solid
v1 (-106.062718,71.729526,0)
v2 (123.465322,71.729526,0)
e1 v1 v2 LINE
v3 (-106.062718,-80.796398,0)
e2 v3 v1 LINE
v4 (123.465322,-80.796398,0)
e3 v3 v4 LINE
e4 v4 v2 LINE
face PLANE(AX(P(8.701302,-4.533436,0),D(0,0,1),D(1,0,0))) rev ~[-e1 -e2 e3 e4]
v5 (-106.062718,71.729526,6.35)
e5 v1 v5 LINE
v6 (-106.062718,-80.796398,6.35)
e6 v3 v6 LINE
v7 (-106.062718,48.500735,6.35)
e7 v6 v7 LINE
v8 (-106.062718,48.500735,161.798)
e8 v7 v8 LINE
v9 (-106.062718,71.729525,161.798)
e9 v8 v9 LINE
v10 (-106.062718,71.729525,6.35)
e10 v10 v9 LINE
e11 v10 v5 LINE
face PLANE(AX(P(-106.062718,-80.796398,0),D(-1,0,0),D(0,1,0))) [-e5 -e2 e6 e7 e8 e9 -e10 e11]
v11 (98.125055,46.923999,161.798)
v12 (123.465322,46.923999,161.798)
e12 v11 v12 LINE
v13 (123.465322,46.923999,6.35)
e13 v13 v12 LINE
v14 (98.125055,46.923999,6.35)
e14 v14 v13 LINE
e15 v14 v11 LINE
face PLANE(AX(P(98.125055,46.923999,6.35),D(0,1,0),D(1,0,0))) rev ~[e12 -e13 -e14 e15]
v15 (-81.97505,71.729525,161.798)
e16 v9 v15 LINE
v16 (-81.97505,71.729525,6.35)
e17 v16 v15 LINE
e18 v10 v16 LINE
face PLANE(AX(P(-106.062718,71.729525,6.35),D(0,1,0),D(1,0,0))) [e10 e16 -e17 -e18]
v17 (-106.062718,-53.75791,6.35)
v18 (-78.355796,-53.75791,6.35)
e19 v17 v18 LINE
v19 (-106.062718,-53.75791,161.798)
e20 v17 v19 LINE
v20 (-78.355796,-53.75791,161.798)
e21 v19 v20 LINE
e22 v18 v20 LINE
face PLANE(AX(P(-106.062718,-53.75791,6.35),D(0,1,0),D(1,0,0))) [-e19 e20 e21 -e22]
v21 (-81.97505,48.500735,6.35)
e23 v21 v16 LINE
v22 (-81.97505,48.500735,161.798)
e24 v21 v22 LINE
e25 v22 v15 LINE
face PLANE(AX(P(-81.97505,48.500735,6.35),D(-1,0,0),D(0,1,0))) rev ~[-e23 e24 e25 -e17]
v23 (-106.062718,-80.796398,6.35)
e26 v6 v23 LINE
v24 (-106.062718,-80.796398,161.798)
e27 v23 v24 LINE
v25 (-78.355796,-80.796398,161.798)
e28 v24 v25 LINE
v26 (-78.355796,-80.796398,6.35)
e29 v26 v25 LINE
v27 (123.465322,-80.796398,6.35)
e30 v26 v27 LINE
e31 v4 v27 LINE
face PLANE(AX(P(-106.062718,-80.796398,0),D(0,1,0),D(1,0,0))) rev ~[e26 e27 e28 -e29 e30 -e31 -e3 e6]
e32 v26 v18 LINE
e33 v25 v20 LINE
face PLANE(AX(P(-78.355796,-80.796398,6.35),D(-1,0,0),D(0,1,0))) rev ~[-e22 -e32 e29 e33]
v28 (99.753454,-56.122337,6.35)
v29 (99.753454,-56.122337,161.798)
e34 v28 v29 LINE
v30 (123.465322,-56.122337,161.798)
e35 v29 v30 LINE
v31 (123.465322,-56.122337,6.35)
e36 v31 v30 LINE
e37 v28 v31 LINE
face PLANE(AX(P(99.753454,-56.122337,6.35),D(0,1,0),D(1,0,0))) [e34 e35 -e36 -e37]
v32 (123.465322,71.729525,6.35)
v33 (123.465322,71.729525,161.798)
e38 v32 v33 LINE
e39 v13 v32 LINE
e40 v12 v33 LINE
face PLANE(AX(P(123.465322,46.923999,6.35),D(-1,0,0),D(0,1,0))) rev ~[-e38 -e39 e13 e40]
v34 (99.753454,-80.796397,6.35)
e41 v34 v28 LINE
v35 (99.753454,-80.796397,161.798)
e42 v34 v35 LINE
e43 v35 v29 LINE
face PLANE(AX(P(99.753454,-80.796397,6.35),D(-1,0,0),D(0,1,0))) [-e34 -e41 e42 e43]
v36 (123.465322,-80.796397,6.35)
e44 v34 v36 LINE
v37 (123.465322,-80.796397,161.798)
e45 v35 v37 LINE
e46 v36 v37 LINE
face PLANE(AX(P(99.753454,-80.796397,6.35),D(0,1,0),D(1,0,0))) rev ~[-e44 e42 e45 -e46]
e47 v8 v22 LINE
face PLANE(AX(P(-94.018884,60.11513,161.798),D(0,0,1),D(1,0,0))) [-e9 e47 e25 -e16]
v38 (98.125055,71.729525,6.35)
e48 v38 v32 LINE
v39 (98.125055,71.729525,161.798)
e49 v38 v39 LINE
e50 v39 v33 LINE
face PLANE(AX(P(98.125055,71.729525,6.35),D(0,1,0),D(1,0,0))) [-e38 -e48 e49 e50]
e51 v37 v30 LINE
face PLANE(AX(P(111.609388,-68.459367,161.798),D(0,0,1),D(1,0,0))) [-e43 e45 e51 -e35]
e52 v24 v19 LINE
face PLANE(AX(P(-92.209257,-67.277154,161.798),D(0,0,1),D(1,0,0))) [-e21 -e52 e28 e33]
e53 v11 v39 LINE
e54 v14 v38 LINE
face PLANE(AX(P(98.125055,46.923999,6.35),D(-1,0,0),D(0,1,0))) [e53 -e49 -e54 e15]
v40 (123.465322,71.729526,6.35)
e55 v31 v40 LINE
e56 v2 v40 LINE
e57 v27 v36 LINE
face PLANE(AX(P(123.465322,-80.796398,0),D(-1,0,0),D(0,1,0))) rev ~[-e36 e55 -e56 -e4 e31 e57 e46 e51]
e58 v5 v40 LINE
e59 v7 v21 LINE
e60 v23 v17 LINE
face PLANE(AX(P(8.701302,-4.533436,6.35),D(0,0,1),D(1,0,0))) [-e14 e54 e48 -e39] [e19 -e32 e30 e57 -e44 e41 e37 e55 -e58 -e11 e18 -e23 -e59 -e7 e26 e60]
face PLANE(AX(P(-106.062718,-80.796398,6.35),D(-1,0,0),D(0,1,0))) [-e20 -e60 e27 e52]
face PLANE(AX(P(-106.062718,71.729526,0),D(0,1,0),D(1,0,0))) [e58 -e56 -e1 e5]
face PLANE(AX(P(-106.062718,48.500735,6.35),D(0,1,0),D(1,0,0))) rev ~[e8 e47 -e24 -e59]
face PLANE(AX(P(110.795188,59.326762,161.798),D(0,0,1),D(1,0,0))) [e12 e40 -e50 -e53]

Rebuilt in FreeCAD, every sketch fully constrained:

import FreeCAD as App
import Part
import Sketcher
from FreeCAD import Vector


def add_polygon(sketch, points):
    """Adds a closed chain of lines whose ends are joined by coincident constraints."""
    first, n = sketch.GeometryCount, len(points)
    for a, b in zip(points, points[1:] + points[:1]):
        sketch.addGeometry(Part.LineSegment(App.Vector(*a, 0), App.Vector(*b, 0)), False)
    for i in range(n):
        sketch.addConstraint(Sketcher.Constraint("Coincident", first + i, 2, first + (i + 1) % n, 1))

doc = App.newDocument("Part")
params = doc.addObject("Spreadsheet::Sheet", "Params")
for row, (alias, value) in enumerate([
    ("pad1_length", "0.25 in"),
    ("pad2_length", "6.12 in"),
    ("pad3_length", "6.12 in"),
    ("pad4_length", "6.12 in"),
], start=1):
    params.set(f"A{row}", alias)
    params.set(f"B{row}", "=" + value)
    params.setAlias(f"B{row}", alias)

body = doc.addObject("PartDesign::Body", "Body")

# Sketch on XY plane
sketch1 = body.newObject("Sketcher::SketchObject", "Sketch")
sketch1.AttachmentSupport = (doc.getObject("XY_Plane"), [""])
sketch1.MapMode = "FlatFace"
add_polygon(sketch1, [(-106.062718, 71.729526), (-106.062718, -80.796398), (123.465322, -80.796398), (123.465322, 71.729526)])  # lines 0-3
sketch1.addConstraint([
    Sketcher.Constraint("Vertical", 0),
    Sketcher.Constraint("Horizontal", 1),
    Sketcher.Constraint("Vertical", 2),
    Sketcher.Constraint("Horizontal", 3),
    Sketcher.Constraint("DistanceX", 1, 1, 1, 2, 229.52804),
    Sketcher.Constraint("DistanceY", 0, 2, 0, 1, 152.525924),
    Sketcher.Constraint("DistanceX", 0, 2, -1, 1, 106.062718),
    Sketcher.Constraint("DistanceY", 0, 2, -1, 1, 80.796398),
])
pad1 = body.newObject("PartDesign::Pad", "Pad")
pad1.Profile = sketch1
pad1.setExpression("Length", "Params.pad1_length")

# Sketch on XY plane
sketch2 = body.newObject("Sketcher::SketchObject", "Sketch001")
sketch2.AttachmentSupport = (doc.getObject("XY_Plane"), [""])
sketch2.MapMode = "FlatFace"
sketch2.AttachmentOffset = App.Placement(Vector(0, 0, 0.25 * 25.4), App.Rotation())
add_polygon(sketch2, [(99.753454, -56.122337), (99.753454, -80.796397), (123.465322, -80.796397), (123.465322, -56.122337)])  # lines 0-3
sketch2.addConstraint([
    Sketcher.Constraint("Vertical", 0),
    Sketcher.Constraint("Horizontal", 1),
    Sketcher.Constraint("Vertical", 2),
    Sketcher.Constraint("Horizontal", 3),
    Sketcher.Constraint("DistanceY", 0, 2, 0, 1, 24.674061),
    Sketcher.Constraint("DistanceX", 1, 1, 1, 2, 23.711868),
    Sketcher.Constraint("DistanceX", -1, 1, 1, 2, 123.465322),
    Sketcher.Constraint("DistanceY", 0, 2, -1, 1, 80.796397),
])
pad2 = body.newObject("PartDesign::Pad", "Pad001")
pad2.Profile = sketch2
pad2.setExpression("Length", "Params.pad2_length")

# Sketch on XY plane
sketch3 = body.newObject("Sketcher::SketchObject", "Sketch002")
sketch3.AttachmentSupport = (doc.getObject("XY_Plane"), [""])
sketch3.MapMode = "FlatFace"
sketch3.AttachmentOffset = App.Placement(Vector(0, 0, 0.25 * 25.4), App.Rotation())
add_polygon(sketch3, [(98.125055, 71.729525), (98.125055, 46.923999), (123.465322, 46.923999), (123.465322, 71.729525)])  # lines 0-3
sketch3.addConstraint([
    Sketcher.Constraint("Vertical", 0),
    Sketcher.Constraint("Horizontal", 1),
    Sketcher.Constraint("Vertical", 2),
    Sketcher.Constraint("Horizontal", 3),
    Sketcher.Constraint("DistanceY", -1, 1, 0, 2, 46.923999),
    Sketcher.Constraint("DistanceX", 1, 1, 1, 2, 25.340267),
    Sketcher.Constraint("DistanceY", 0, 2, 0, 1, 24.805527),
    Sketcher.Constraint("DistanceX", -1, 1, 1, 2, 123.465322),
])
pad3 = body.newObject("PartDesign::Pad", "Pad002")
pad3.Profile = sketch3
pad3.setExpression("Length", "Params.pad3_length")

# Sketch on XY plane
sketch4 = body.newObject("Sketcher::SketchObject", "Sketch003")
sketch4.AttachmentSupport = (doc.getObject("XY_Plane"), [""])
sketch4.MapMode = "FlatFace"
sketch4.AttachmentOffset = App.Placement(Vector(0, 0, 0.25 * 25.4), App.Rotation())
add_polygon(sketch4, [(-106.062718, -53.75791), (-106.062718, -80.796398), (-78.355796, -80.796398), (-78.355796, -53.75791)])  # lines 0-3
add_polygon(sketch4, [(-106.062718, 71.729525), (-106.062718, 48.500735), (-81.97505, 48.500735), (-81.97505, 71.729525)])  # lines 4-7
sketch4.addConstraint([
    Sketcher.Constraint("Vertical", 0),
    Sketcher.Constraint("Horizontal", 1),
    Sketcher.Constraint("Vertical", 2),
    Sketcher.Constraint("Horizontal", 3),
    Sketcher.Constraint("Vertical", 4),
    Sketcher.Constraint("Horizontal", 5),
    Sketcher.Constraint("Vertical", 6),
    Sketcher.Constraint("Horizontal", 7),
    Sketcher.Constraint("Vertical", 3, 2, 4, 2),
    Sketcher.Constraint("DistanceX", 1, 1, 1, 2, 27.706921),
    Sketcher.Constraint("DistanceX", 5, 1, 5, 2, 24.087668),
    Sketcher.Constraint("DistanceY", 4, 2, 4, 1, 23.228791),
    Sketcher.Constraint("DistanceY", 0, 2, 0, 1, 27.038488),
    Sketcher.Constraint("DistanceY", 2, 2, -1, 1, 53.75791),
    Sketcher.Constraint("DistanceX", 4, 2, -1, 1, 106.062718),
    Sketcher.Constraint("DistanceY", -1, 1, 4, 2, 48.500735),
])
pad4 = body.newObject("PartDesign::Pad", "Pad003")
pad4.Profile = sketch4
pad4.setExpression("Length", "Params.pad4_length")

doc.recompute()
